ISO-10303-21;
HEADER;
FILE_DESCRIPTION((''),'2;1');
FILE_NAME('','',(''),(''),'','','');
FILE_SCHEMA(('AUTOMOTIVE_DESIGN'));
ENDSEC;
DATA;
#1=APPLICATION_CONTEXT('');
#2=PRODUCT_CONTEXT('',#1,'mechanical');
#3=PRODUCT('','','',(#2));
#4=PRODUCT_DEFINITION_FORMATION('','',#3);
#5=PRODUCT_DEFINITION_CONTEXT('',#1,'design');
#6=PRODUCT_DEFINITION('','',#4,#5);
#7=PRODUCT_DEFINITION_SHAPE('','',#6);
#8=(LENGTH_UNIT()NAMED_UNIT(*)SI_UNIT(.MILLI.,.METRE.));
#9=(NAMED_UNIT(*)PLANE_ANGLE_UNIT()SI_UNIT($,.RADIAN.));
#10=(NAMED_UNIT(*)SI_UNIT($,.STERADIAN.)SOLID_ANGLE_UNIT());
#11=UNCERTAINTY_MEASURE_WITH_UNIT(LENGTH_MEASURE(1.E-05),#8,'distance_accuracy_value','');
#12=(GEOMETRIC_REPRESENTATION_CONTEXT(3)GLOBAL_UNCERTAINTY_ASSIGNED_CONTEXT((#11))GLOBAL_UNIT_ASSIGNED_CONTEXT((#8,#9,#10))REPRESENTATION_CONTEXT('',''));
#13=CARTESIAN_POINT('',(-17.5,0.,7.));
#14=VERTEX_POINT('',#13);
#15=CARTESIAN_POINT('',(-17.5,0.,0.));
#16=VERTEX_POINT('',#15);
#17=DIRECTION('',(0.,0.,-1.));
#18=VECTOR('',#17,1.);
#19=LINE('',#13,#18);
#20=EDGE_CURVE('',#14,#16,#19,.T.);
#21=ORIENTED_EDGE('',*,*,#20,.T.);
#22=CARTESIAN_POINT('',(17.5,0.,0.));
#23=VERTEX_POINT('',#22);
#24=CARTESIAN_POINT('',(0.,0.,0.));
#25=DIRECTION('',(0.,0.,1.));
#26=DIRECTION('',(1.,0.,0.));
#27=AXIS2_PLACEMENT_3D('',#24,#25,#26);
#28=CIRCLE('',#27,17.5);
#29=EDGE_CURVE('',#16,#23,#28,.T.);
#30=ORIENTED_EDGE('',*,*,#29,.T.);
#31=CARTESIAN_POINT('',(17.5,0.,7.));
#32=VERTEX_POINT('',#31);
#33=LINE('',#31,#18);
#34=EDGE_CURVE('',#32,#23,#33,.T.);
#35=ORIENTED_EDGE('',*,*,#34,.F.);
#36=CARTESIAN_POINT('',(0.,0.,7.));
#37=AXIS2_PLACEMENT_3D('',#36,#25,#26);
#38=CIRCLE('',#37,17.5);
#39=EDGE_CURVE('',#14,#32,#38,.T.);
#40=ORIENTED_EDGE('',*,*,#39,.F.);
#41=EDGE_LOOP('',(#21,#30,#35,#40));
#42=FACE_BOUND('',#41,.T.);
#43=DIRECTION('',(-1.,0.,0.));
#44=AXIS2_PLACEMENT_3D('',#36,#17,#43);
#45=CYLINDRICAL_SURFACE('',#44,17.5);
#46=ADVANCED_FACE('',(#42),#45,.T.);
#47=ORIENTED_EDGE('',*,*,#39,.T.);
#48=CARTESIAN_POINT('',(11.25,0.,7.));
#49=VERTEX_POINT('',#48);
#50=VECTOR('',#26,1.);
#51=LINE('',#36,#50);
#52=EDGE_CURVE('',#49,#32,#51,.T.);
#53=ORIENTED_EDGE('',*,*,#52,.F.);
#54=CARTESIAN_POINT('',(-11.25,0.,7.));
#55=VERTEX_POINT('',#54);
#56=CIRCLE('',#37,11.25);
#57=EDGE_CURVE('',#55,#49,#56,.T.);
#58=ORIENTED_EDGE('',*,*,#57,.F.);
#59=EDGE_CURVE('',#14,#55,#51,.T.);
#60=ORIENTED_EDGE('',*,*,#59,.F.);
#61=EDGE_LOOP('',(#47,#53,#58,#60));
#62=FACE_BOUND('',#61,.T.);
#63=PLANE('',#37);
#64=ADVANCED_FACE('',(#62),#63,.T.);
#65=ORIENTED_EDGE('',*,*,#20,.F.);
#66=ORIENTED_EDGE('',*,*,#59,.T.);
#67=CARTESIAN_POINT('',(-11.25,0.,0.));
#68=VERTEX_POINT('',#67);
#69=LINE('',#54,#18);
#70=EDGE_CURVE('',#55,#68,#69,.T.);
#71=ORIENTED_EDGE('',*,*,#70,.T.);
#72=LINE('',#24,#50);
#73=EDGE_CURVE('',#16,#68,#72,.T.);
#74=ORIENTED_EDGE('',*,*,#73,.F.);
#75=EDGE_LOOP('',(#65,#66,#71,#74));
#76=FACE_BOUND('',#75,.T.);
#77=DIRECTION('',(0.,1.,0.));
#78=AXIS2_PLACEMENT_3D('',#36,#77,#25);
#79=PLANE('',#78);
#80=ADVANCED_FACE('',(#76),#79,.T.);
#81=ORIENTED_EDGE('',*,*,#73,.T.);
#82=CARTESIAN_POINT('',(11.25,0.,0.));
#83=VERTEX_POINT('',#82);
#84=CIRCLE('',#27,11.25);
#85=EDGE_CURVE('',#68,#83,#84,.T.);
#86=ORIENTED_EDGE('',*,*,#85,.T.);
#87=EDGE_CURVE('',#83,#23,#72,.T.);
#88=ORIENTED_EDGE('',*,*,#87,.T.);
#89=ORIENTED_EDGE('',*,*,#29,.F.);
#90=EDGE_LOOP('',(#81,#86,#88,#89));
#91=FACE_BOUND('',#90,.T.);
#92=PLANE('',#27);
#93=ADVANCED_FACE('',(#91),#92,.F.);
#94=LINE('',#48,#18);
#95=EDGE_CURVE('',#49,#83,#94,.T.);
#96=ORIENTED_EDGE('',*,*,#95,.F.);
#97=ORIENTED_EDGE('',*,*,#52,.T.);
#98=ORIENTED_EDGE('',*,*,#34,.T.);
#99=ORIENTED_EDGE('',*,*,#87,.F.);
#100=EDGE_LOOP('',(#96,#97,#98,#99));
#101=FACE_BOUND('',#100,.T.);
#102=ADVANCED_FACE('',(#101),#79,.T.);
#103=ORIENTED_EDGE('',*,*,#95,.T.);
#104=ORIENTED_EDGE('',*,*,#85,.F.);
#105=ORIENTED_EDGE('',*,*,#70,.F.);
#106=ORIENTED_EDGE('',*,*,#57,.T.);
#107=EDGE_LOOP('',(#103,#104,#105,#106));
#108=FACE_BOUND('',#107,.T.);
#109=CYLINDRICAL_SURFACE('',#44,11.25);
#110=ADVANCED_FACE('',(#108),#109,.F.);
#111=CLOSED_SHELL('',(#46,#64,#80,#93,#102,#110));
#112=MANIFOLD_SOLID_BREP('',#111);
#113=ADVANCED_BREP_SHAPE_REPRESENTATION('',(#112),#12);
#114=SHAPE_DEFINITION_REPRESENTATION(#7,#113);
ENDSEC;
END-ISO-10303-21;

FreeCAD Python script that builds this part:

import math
import FreeCAD as App
import Part
import Sketcher

V = App.Vector

doc = App.newDocument("Part")
params = doc.addObject("Spreadsheet::Sheet", "Params")
for row, (alias, value) in enumerate([
    ("sketch1_radius", "17.5 mm"),
    ("sketch1_radius2", "11.25 mm"),
    ("pad1_length", "7 mm"),
], start=1):
    params.set(f"A{row}", alias)
    params.set(f"B{row}", "=" + value)
    params.setAlias(f"B{row}", alias)

body = doc.addObject("PartDesign::Body", "Body")

# Sketch on XY plane
sketch1 = doc.addObject("Sketcher::SketchObject", "Sketch")
body.addObject(sketch1)
sketch1.AttachmentSupport = (doc.XY_Plane, [""])
sketch1.MapMode = "FlatFace"
sketch1.addGeometry(Part.LineSegment(V(-11.25, 0, 0), V(-17.5, 0, 0)), False)
sketch1.addGeometry(Part.ArcOfCircle(Part.Circle(V(0, 0, 0), V(0, 0, 1), 17.5), math.radians(180), math.radians(360)), False)
sketch1.addGeometry(Part.LineSegment(V(17.5, 0, 0), V(11.25, 0, 0)), False)
sketch1.addGeometry(Part.ArcOfCircle(Part.Circle(V(0, 0, 0), V(0, 0, 1), 11.25), math.radians(180), math.radians(360)), False)
sketch1.addConstraint(Sketcher.Constraint("Coincident", 0, 2, 1, 1))
sketch1.addConstraint(Sketcher.Constraint("Coincident", 1, 2, 2, 1))
sketch1.addConstraint(Sketcher.Constraint("Coincident", 2, 2, 3, 2))
sketch1.addConstraint(Sketcher.Constraint("Coincident", 3, 1, 0, 1))
sketch1.addConstraint(Sketcher.Constraint("Horizontal", 0))
sketch1.addConstraint(Sketcher.Constraint("Horizontal", 2))
sketch1.addConstraint(Sketcher.Constraint("Coincident", 1, 3, -1, 1))
sketch1.addConstraint(Sketcher.Constraint("Coincident", 3, 3, -1, 1))
sketch1.addConstraint(Sketcher.Constraint("PointOnObject", 0, 2, -1))
sketch1.addConstraint(Sketcher.Constraint("PointOnObject", 1, 2, -1))
sketch1.addConstraint(Sketcher.Constraint("Radius", 1, 17.5))
sketch1.addConstraint(Sketcher.Constraint("Radius", 3, 11.25))
sketch1.setExpression("Constraints[10]", "Params.sketch1_radius")
sketch1.setExpression("Constraints[11]", "Params.sketch1_radius2")
pad1 = doc.addObject("PartDesign::Pad", "Pad")
body.addObject(pad1)
pad1.Profile = sketch1
pad1.setExpression("Length", "Params.pad1_length")

doc.recompute()
